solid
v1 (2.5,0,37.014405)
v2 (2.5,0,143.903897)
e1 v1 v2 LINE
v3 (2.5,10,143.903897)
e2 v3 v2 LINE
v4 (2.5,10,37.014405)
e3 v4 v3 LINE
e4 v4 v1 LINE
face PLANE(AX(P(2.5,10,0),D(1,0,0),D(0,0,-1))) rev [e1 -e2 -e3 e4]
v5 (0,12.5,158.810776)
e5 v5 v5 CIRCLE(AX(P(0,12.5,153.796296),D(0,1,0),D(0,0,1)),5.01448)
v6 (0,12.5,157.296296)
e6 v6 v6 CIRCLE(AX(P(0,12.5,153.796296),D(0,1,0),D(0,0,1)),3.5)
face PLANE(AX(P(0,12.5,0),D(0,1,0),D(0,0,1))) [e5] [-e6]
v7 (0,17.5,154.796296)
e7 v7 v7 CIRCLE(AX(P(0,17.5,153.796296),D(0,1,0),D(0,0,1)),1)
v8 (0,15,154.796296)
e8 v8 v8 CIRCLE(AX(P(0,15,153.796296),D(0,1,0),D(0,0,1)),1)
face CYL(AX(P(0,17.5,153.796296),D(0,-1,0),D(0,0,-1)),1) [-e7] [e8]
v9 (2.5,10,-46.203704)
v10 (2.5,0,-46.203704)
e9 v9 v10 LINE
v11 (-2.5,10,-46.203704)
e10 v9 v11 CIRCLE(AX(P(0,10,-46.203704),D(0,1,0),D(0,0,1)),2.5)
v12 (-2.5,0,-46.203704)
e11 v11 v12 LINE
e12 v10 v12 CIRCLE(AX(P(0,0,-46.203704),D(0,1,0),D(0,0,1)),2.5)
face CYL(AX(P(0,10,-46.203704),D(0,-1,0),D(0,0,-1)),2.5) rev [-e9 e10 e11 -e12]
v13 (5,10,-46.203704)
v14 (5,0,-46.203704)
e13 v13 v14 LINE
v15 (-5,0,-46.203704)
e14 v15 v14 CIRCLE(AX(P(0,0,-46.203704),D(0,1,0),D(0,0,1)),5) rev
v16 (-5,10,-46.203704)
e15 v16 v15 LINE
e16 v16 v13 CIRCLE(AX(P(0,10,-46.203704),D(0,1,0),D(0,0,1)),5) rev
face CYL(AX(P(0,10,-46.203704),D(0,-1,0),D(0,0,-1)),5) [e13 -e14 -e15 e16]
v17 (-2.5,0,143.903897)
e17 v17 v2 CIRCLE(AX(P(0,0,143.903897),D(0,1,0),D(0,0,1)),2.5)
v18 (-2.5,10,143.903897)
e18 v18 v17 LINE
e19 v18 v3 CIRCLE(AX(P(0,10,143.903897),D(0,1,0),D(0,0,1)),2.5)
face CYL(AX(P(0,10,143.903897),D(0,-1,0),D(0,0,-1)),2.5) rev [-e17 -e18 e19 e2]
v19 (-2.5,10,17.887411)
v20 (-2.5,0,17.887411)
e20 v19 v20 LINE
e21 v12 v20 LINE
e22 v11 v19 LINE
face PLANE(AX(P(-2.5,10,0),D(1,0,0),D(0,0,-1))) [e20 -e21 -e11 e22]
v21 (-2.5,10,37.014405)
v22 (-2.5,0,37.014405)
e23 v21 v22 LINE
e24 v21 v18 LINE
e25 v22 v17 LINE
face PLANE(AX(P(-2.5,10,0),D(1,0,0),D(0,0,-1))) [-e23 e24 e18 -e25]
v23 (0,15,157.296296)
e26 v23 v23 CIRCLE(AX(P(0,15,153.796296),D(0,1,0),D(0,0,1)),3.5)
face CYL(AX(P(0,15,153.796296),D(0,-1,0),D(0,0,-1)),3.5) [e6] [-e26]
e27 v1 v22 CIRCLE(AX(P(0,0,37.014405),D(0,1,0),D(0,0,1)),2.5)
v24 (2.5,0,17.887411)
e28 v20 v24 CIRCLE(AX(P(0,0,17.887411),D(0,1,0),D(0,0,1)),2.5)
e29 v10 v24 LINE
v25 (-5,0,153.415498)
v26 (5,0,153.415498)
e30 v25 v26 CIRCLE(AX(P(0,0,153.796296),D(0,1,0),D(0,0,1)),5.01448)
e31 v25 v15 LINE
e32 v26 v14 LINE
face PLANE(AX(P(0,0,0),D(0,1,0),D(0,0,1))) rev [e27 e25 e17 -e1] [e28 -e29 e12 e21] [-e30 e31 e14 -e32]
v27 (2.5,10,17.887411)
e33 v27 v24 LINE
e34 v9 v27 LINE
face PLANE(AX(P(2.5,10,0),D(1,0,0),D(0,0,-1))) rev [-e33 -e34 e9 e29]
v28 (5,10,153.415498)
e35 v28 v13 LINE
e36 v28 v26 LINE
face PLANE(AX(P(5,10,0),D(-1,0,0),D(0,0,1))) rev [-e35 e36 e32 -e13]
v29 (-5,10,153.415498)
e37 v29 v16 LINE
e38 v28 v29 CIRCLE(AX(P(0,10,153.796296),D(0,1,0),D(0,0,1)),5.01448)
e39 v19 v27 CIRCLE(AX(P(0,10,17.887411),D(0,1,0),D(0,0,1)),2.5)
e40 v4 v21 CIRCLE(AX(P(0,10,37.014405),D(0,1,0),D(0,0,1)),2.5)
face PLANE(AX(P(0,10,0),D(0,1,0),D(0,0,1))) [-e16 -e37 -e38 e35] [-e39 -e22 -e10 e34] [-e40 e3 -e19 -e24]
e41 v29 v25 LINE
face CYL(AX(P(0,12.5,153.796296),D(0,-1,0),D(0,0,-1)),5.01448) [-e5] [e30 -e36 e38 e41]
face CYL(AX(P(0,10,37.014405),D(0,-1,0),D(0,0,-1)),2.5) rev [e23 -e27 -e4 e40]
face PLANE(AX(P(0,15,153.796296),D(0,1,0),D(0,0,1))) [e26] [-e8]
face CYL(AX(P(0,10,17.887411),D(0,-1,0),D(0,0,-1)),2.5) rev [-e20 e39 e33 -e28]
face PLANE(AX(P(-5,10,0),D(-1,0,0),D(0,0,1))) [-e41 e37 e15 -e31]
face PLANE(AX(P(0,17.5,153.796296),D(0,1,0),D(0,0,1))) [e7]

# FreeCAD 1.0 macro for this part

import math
import FreeCAD as App
import Part
import Sketcher
Q = App.Units.Quantity

doc = App.newDocument("Part")
params = doc.addObject("Spreadsheet::Sheet", "Params")
for row, (alias, value) in enumerate([
    ("sketch1_radius", "5 mm"),
    ("sketch1_radius2", "2.5 mm"),
    ("pad1_length", "10 mm"),
    ("pad2_length", "12.5 mm"),
    ("sketch3_diameter", "7 mm"),
    ("pad3_length", "2.5 mm"),
    ("sketch4_diameter", "2 mm"),
    ("pad4_length", "2.5 mm"),
], start=1):
    params.set(f"A{row}", alias)
    params.set(f"B{row}", "=" + value)
    params.setAlias(f"B{row}", alias)

body = doc.addObject("PartDesign::Body", "Body")

# Sketch on XZ plane
sketch1 = doc.addObject("Sketcher::SketchObject", "Sketch")
body.addObject(sketch1)
sketch1.AttachmentSupport = (doc.XZ_Plane, [""])
sketch1.MapMode = "FlatFace"
sketch1.addGeometry([
    Part.LineSegment(App.Vector(-5, -46.2, 0), App.Vector(-5, 153.4, 0)),  # 0
    Part.ArcOfCircle(Part.Circle(App.Vector(0, 153.8, 0), App.Vector(0, 0, 1), 5), math.radians(-176), math.radians(-4)),  # 1
    Part.LineSegment(App.Vector(5, 153.4, 0), App.Vector(5, -46.2, 0)),  # 2
    Part.ArcOfCircle(Part.Circle(App.Vector(0, -46.2, 0), App.Vector(0, 0, 1), 5), math.radians(180), math.radians(360)),  # 3
    Part.LineSegment(App.Vector(-2.5, 143.9, 0), App.Vector(-2.5, 37, 0)),  # 4
    Part.ArcOfCircle(Part.Circle(App.Vector(0, 37, 0), App.Vector(0, 0, 1), 2.5), math.radians(180), math.radians(360)),  # 5
    Part.LineSegment(App.Vector(2.5, 37, 0), App.Vector(2.5, 143.9, 0)),  # 6
    Part.ArcOfCircle(Part.Circle(App.Vector(0, 143.9, 0), App.Vector(0, 0, 1), 2.5), math.radians(0), math.radians(180)),  # 7
    Part.LineSegment(App.Vector(-2.5, 17.9, 0), App.Vector(-2.5, -46.2, 0)),  # 8
    Part.ArcOfCircle(Part.Circle(App.Vector(0, -46.2, 0), App.Vector(0, 0, 1), 2.5), math.radians(180), math.radians(360)),  # 9
    Part.LineSegment(App.Vector(2.5, -46.2, 0), App.Vector(2.5, 17.9, 0)),  # 10
    Part.ArcOfCircle(Part.Circle(App.Vector(0, 17.9, 0), App.Vector(0, 0, 1), 2.5), math.radians(0), math.radians(180)),  # 11
], False)
sketch1.addConstraint([
    Sketcher.Constraint("Coincident", 0, 2, 1, 1),
    Sketcher.Constraint("Coincident", 1, 2, 2, 1),
    Sketcher.Constraint("Tangent", 2, 2, 3, 2),
    Sketcher.Constraint("Tangent", 3, 1, 0, 1),
    Sketcher.Constraint("Tangent", 4, 2, 5, 1),
    Sketcher.Constraint("Tangent", 5, 2, 6, 1),
    Sketcher.Constraint("Tangent", 6, 2, 7, 1),
    Sketcher.Constraint("Tangent", 7, 2, 4, 1),
    Sketcher.Constraint("Tangent", 8, 2, 9, 1),
    Sketcher.Constraint("Tangent", 9, 2, 10, 1),
    Sketcher.Constraint("Tangent", 10, 2, 11, 1),
    Sketcher.Constraint("Tangent", 11, 2, 8, 1),
    Sketcher.Constraint("Vertical", 0),
    Sketcher.Constraint("Vertical", 2),
    Sketcher.Constraint("Vertical", 4),
    Sketcher.Constraint("Vertical", 6),
    Sketcher.Constraint("Vertical", 8),
    Sketcher.Constraint("Vertical", 10),
    Sketcher.Constraint("Coincident", 9, 3, 3, 3),
    Sketcher.Constraint("Equal", 7, 9),
    Sketcher.Constraint("Symmetric", 0, 2, 1, 2, -2),
    Sketcher.Constraint("PointOnObject", 5, 3, -2),
    Sketcher.Constraint("Radius", 3, Q("5 mm")),
    Sketcher.Constraint("Radius", 5, Q("2.5 mm")),
    Sketcher.Constraint("DistanceY", 3, 3, 1, 3, Q("200 mm")),
    Sketcher.Constraint("Radius", 1, Q("5.01448 mm")),
    Sketcher.Constraint("DistanceY", 4, 2, 4, 1, Q("106.889492 mm")),
    Sketcher.Constraint("DistanceY", 7, 3, 1, 3, Q("9.892399 mm")),
    Sketcher.Constraint("DistanceY", 8, 2, 8, 1, Q("64.091114 mm")),
    Sketcher.Constraint("DistanceY", -1, 1, 11, 3, Q("17.887411 mm")),
])
sketch1.setExpression("Constraints[22]", "Params.sketch1_radius")
sketch1.setExpression("Constraints[23]", "Params.sketch1_radius2")
pad1 = doc.addObject("PartDesign::Pad", "Pad")
body.addObject(pad1)
pad1.Profile = sketch1
pad1.setExpression("Length", "Params.pad1_length")
pad1.Reversed = True

# Sketch on XZ plane
sketch2 = doc.addObject("Sketcher::SketchObject", "Sketch001")
body.addObject(sketch2)
sketch2.AttachmentSupport = (doc.XZ_Plane, [""])
sketch2.MapMode = "FlatFace"
sketch2.addGeometry(Part.Circle(App.Vector(0, 154, 0), App.Vector(0, 0, 1), 5), False)
sketch2.addConstraint([
    Sketcher.Constraint("PointOnObject", 0, 3, -2),
    Sketcher.Constraint("Diameter", 0, Q("10.02896 mm")),
    Sketcher.Constraint("DistanceY", -1, 1, 0, 3, Q("153.796296 mm")),
])
pad2 = doc.addObject("PartDesign::Pad", "Pad001")
body.addObject(pad2)
pad2.Profile = sketch2
pad2.setExpression("Length", "Params.pad2_length")
pad2.Reversed = True

# Sketch on XZ plane
sketch3 = doc.addObject("Sketcher::SketchObject", "Sketch002")
body.addObject(sketch3)
sketch3.AttachmentSupport = (doc.XZ_Plane, [""])
sketch3.MapMode = "FlatFace"
sketch3.AttachmentOffset = App.Placement(App.Vector(0, 0, -12.5), App.Rotation())
sketch3.addGeometry(Part.Circle(App.Vector(0, 153.8, 0), App.Vector(0, 0, 1), 3.5), False)
sketch3.addConstraint([
    Sketcher.Constraint("PointOnObject", 0, 3, -2),
    Sketcher.Constraint("Diameter", 0, Q("7 mm")),
    Sketcher.Constraint("DistanceY", -1, 1, 0, 3, Q("153.796296 mm")),
])
sketch3.setExpression("Constraints[1]", "Params.sketch3_diameter")
pad3 = doc.addObject("PartDesign::Pad", "Pad002")
body.addObject(pad3)
pad3.Profile = sketch3
pad3.setExpression("Length", "Params.pad3_length")
pad3.Reversed = True

# Sketch on XZ plane
sketch4 = doc.addObject("Sketcher::SketchObject", "Sketch003")
body.addObject(sketch4)
sketch4.AttachmentSupport = (doc.XZ_Plane, [""])
sketch4.MapMode = "FlatFace"
sketch4.AttachmentOffset = App.Placement(App.Vector(0, 0, -15), App.Rotation())
sketch4.addGeometry(Part.Circle(App.Vector(0, 153.8, 0), App.Vector(0, 0, 1), 1), False)
sketch4.addConstraint([
    Sketcher.Constraint("PointOnObject", 0, 3, -2),
    Sketcher.Constraint("Diameter", 0, Q("2 mm")),
    Sketcher.Constraint("DistanceY", -1, 1, 0, 3, Q("153.796296 mm")),
])
sketch4.setExpression("Constraints[1]", "Params.sketch4_diameter")
pad4 = doc.addObject("PartDesign::Pad", "Pad003")
body.addObject(pad4)
pad4.Profile = sketch4
pad4.setExpression("Length", "Params.pad4_length")
pad4.Reversed = True

doc.recompute()
